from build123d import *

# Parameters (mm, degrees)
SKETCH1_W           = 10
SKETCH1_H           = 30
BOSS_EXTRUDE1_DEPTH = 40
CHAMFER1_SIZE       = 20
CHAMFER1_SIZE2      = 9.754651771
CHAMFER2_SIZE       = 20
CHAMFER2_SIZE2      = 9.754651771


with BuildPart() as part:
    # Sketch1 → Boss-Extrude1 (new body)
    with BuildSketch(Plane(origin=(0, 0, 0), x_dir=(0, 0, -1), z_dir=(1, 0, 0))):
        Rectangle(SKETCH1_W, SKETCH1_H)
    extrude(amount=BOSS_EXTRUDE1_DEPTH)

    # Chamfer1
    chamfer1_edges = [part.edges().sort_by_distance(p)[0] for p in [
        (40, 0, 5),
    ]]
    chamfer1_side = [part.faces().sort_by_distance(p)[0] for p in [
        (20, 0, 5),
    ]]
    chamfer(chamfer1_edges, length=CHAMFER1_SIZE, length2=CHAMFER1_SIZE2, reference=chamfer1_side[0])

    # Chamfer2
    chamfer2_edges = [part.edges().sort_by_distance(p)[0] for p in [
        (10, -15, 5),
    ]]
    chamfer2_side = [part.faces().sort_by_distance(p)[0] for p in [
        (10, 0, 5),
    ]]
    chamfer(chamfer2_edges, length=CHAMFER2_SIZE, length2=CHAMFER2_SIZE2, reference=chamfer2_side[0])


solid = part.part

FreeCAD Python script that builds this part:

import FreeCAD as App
import Part
import Sketcher

V = App.Vector
Q = App.Units.Quantity


def edges_at(feature, points):
    """Names of the edges that pass closest to the given points."""
    edges = feature.Shape.Edges
    near = lambda p: min(range(len(edges)), key=lambda i: edges[i].distToShape(Part.Vertex(*p))[0])
    return sorted({f"Edge{near(p) + 1}" for p in points})

doc = App.newDocument("Part")
body = doc.addObject("PartDesign::Body", "Body")

sketch1 = body.newObject("Sketcher::SketchObject", "Sketch")
sketch1.AttachmentSupport = (doc.getObject("YZ_Plane"), [""])
sketch1.MapMode = "FlatFace"
sketch1.addGeometry([
    Part.LineSegment(V(15, 5, 0), V(-15, 5, 0)),
    Part.LineSegment(V(-15, 5, 0), V(-15, -5, 0)),
    Part.LineSegment(V(-15, -5, 0), V(15, -5, 0)),
    Part.LineSegment(V(15, -5, 0), V(15, 5, 0)),
], False)
sketch1.addConstraint([
    Sketcher.Constraint("Coincident", 0, 2, 1, 1),
    Sketcher.Constraint("Coincident", 1, 2, 2, 1),
    Sketcher.Constraint("Coincident", 2, 2, 3, 1),
    Sketcher.Constraint("Coincident", 3, 2, 0, 1),
    Sketcher.Constraint("Horizontal", 0),
    Sketcher.Constraint("Vertical", 1),
    Sketcher.Constraint("Horizontal", 2),
    Sketcher.Constraint("Vertical", 3),
    Sketcher.Constraint("Symmetric", 0, 2, 2, 2, -1, 1),
    Sketcher.Constraint("DistanceX", 0, 2, 0, 1, Q("30 mm")),
    Sketcher.Constraint("DistanceY", 1, 2, 1, 1, Q("10 mm")),
])
pad1 = body.newObject("PartDesign::Pad", "Pad")
pad1.Profile = sketch1
pad1.Length = 40
doc.recompute()

chamfer = body.newObject("PartDesign::Chamfer", "Chamfer")
chamfer.Base = (pad1, edges_at(pad1, [(40, 0, 5)]))
chamfer.ChamferType = "Two distances"
chamfer.Size = 20
chamfer.Size2 = 9.754652
doc.recompute()

chamfer2 = body.newObject("PartDesign::Chamfer", "Chamfer001")
chamfer2.Base = (chamfer, edges_at(chamfer, [(10, -15, 5)]))
chamfer2.ChamferType = "Two distances"
chamfer2.Size = 20
chamfer2.Size2 = 9.754652

doc.recompute()
